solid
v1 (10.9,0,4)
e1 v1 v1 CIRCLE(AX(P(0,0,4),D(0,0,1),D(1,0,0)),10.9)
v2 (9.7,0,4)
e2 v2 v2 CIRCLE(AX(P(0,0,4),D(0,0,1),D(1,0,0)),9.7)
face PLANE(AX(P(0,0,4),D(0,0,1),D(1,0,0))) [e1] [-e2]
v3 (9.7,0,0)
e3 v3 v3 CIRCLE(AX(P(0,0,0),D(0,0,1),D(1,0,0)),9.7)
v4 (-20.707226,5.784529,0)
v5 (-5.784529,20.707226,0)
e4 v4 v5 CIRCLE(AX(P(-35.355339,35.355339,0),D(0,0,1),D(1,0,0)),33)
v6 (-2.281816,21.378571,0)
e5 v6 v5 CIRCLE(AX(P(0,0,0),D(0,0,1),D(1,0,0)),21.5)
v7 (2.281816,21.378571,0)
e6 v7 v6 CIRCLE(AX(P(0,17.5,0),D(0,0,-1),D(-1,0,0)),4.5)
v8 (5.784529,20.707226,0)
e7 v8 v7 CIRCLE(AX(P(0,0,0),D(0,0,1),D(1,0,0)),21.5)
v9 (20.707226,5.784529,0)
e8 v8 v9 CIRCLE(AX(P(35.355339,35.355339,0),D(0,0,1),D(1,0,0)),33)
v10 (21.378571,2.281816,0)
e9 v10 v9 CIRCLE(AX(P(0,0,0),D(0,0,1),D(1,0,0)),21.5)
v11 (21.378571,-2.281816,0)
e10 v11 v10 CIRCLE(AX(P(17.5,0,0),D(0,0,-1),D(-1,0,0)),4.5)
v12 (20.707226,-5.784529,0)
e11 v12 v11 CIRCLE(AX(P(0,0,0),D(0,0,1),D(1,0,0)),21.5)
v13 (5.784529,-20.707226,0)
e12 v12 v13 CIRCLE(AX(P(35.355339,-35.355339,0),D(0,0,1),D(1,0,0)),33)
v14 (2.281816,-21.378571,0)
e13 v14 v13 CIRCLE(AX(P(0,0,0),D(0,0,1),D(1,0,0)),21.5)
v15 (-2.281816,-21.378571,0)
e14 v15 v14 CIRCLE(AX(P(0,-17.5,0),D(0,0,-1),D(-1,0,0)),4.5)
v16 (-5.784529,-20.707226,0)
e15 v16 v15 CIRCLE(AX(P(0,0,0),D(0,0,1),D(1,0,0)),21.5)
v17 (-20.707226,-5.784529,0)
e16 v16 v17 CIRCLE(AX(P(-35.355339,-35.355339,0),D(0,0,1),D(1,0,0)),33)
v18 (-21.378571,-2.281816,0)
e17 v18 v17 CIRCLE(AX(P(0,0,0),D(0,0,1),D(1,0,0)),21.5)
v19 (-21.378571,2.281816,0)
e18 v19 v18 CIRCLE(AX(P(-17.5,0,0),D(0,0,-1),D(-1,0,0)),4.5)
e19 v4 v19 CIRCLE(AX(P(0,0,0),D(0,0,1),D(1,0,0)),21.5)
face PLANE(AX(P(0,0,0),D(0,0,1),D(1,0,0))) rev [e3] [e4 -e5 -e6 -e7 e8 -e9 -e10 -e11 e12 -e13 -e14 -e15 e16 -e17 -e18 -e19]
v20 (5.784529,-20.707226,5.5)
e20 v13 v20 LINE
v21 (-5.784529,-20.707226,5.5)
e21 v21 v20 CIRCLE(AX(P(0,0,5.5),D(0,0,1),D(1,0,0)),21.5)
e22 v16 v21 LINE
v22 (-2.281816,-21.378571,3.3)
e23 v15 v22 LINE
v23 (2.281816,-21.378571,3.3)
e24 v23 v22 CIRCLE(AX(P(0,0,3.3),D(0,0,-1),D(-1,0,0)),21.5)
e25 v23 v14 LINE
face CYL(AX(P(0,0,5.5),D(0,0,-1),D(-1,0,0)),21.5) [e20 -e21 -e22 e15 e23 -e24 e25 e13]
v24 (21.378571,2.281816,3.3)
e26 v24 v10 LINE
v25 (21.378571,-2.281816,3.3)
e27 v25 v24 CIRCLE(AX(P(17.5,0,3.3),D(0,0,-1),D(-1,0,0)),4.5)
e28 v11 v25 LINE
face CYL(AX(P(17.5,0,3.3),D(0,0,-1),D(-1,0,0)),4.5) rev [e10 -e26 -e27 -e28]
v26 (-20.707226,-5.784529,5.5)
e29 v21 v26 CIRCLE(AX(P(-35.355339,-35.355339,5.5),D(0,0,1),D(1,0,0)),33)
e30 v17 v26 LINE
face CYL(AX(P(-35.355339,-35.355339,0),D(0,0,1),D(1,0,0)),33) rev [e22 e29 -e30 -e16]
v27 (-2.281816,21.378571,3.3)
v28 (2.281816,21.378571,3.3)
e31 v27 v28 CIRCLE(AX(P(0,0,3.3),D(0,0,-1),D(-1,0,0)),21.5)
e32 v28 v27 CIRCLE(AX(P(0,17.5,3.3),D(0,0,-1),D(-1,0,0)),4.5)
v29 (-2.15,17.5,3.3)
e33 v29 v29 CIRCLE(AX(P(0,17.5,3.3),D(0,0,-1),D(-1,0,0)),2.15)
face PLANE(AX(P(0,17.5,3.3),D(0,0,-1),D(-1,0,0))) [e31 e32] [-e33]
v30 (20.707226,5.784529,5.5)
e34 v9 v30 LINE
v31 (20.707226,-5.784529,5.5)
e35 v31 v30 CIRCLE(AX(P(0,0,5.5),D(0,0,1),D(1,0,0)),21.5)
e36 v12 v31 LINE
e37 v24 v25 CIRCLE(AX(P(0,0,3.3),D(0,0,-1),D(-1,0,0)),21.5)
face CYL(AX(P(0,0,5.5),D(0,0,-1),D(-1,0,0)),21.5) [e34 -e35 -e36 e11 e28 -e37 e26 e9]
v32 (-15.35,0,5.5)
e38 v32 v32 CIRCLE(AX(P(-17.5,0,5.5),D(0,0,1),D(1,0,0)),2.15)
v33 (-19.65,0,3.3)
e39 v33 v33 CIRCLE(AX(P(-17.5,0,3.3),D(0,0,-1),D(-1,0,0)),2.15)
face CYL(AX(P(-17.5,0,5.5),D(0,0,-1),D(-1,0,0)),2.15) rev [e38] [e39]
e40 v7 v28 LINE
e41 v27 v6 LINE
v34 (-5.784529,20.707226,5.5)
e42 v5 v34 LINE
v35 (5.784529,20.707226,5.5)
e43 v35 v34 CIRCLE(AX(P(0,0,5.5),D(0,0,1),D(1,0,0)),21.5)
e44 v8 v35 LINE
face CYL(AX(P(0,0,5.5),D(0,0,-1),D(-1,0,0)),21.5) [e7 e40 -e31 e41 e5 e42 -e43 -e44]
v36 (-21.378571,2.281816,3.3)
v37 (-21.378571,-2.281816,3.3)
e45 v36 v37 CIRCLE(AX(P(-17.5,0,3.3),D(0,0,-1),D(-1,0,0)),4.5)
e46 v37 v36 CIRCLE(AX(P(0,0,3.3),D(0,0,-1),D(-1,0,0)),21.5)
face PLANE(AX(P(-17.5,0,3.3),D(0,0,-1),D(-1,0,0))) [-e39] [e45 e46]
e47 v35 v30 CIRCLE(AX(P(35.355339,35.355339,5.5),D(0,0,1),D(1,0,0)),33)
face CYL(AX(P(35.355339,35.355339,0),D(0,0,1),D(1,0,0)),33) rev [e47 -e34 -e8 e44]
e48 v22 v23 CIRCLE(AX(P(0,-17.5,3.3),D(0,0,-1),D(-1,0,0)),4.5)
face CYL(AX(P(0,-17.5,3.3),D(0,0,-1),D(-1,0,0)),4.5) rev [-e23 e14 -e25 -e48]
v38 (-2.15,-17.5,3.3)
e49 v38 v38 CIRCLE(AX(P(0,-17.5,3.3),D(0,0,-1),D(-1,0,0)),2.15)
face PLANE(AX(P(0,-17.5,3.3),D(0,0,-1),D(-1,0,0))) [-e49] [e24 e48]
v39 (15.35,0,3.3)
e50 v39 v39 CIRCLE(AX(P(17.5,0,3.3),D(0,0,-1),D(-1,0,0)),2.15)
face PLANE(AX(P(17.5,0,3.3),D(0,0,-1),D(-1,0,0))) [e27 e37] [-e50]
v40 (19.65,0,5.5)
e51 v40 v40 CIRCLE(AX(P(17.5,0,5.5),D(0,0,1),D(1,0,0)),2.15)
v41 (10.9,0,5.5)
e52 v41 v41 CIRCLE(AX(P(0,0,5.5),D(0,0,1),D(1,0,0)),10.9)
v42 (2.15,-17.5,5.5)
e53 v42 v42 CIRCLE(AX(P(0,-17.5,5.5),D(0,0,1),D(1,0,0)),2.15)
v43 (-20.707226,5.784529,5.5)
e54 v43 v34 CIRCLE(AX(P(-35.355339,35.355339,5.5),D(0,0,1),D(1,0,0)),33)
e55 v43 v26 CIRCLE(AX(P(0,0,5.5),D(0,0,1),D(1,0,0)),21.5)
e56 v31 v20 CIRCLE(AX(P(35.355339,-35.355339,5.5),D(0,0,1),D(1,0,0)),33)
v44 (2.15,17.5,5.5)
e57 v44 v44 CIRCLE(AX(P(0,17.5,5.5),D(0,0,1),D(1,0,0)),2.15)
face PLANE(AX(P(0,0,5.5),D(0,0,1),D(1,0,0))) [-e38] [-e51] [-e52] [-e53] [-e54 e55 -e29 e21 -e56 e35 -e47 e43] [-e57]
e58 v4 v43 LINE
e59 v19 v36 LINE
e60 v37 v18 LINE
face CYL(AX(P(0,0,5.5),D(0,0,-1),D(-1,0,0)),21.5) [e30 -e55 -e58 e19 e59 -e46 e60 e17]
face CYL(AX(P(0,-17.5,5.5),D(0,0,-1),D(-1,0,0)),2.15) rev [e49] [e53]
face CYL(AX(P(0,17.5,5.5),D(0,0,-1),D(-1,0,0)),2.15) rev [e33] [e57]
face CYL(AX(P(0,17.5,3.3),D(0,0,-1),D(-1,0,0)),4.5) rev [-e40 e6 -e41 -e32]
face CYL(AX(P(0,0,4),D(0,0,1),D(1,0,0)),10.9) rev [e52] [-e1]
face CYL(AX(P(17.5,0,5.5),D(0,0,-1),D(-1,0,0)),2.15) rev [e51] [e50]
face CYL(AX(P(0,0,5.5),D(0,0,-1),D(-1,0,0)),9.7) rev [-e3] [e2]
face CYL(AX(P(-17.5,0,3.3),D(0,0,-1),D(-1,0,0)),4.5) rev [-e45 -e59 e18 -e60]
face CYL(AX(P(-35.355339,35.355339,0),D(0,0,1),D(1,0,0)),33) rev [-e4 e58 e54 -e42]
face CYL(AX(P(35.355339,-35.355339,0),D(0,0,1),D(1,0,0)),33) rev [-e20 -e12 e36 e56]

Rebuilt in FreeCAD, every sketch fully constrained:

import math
import FreeCAD as App
import Part
import Sketcher

V = App.Vector

doc = App.newDocument("Part")
body = doc.addObject("PartDesign::Body", "Body")

# Sketch on XY plane
sketch1 = doc.addObject("Sketcher::SketchObject", "Sketch")
body.addObject(sketch1)
sketch1.AttachmentSupport = (doc.XY_Plane, [""])
sketch1.MapMode = "FlatFace"
sketch1.addGeometry([
    Part.Circle(V(0, 0, 0), V(0, 0, 1), 21.5),  # 0
    Part.Circle(V(0, -17.5, 0), V(0, 0, 1), 2.1),  # 1
    Part.Circle(V(-17.5, 0, 0), V(0, 0, 1), 2.1),  # 2
    Part.Circle(V(0, 0, 0), V(0, 0, 1), 9.7),  # 3
    Part.Circle(V(17.5, 0, 0), V(0, 0, 1), 2.1),  # 4
    Part.Circle(V(0, 17.5, 0), V(0, 0, 1), 2.1),  # 5
], False)
sketch1.addConstraint([
    Sketcher.Constraint("Coincident", 0, 3, -1, 1),
    Sketcher.Constraint("Coincident", 3, 3, -1, 1),
    Sketcher.Constraint("Equal", 1, 2),
    Sketcher.Constraint("Equal", 2, 4),
    Sketcher.Constraint("Equal", 4, 5),
    Sketcher.Constraint("Symmetric", 2, 3, 4, 3, -1, 1),
    Sketcher.Constraint("Symmetric", 1, 3, 5, 3, -1, 1),
    Sketcher.Constraint("PointOnObject", 1, 3, -2),
    Sketcher.Constraint("PointOnObject", 2, 3, -1),
    Sketcher.Constraint("Diameter", 0, 43.0),
    Sketcher.Constraint("Diameter", 1, 4.3),
    Sketcher.Constraint("Diameter", 3, 19.4),
    Sketcher.Constraint("DistanceX", 2, 3, 4, 3, 35.0),
    Sketcher.Constraint("DistanceY", 1, 3, 5, 3, 35.0),
])
pad1 = doc.addObject("PartDesign::Pad", "Pad")
body.addObject(pad1)
pad1.Profile = sketch1
pad1.Length = 5.5

# Sketch on XY plane
sketch2 = doc.addObject("Sketcher::SketchObject", "Sketch001")
body.addObject(sketch2)
sketch2.AttachmentSupport = (doc.XY_Plane, [""])
sketch2.MapMode = "FlatFace"
sketch2.AttachmentOffset = App.Placement(V(0, 0, 5.5), App.Rotation())
sketch2.addGeometry([
    Part.Circle(V(0, 0, 0), V(0, 0, 1), 11),
    Part.Circle(V(0, 0, 0), V(0, 0, 1), 10),
], False)
sketch2.addConstraint([
    Sketcher.Constraint("Coincident", 0, 3, -1, 1),
    Sketcher.Constraint("Coincident", 1, 3, -1, 1),
    Sketcher.Constraint("Diameter", 0, 21.8),
    Sketcher.Constraint("Diameter", 1, 19.1),
])
pocket1 = doc.addObject("PartDesign::Pocket", "Pocket")
body.addObject(pocket1)
pocket1.Profile = sketch2
pocket1.Length = 1.5

# Sketch on XY plane
sketch3 = doc.addObject("Sketcher::SketchObject", "Sketch002")
body.addObject(sketch3)
sketch3.AttachmentSupport = (doc.XY_Plane, [""])
sketch3.MapMode = "FlatFace"
sketch3.AttachmentOffset = App.Placement(V(0, 0, 5.5), App.Rotation())
sketch3.addGeometry([
    Part.ArcOfCircle(Part.Circle(V(35, 35, 0), V(0, 0, 1), 33), math.radians(-154), math.radians(-116)),  # 0
    Part.ArcOfCircle(Part.Circle(V(0, 0, 0), V(0, 0, 1), 21), math.radians(16), math.radians(74)),  # 1
    Part.ArcOfCircle(Part.Circle(V(-35, 35, 0), V(0, 0, 1), 33), math.radians(-64), math.radians(-26)),  # 2
    Part.ArcOfCircle(Part.Circle(V(0, 0, 0), V(0, 0, 1), 21), math.radians(106), math.radians(164)),  # 3
    Part.ArcOfCircle(Part.Circle(V(-35, -35, 0), V(0, 0, 1), 33), math.radians(26), math.radians(64)),  # 4
    Part.ArcOfCircle(Part.Circle(V(0, 0, 0), V(0, 0, 1), 21), math.radians(-164), math.radians(-106)),  # 5
    Part.ArcOfCircle(Part.Circle(V(35, -35, 0), V(0, 0, 1), 33), math.radians(116), math.radians(154)),  # 6
    Part.ArcOfCircle(Part.Circle(V(0, 0, 0), V(0, 0, 1), 21), math.radians(-74), math.radians(-16)),  # 7
], False)
sketch3.addConstraint([
    Sketcher.Constraint("Coincident", 0, 1, 1, 2),
    Sketcher.Constraint("Coincident", 1, 1, 0, 2),
    Sketcher.Constraint("Coincident", 2, 1, 3, 2),
    Sketcher.Constraint("Coincident", 3, 1, 2, 2),
    Sketcher.Constraint("Coincident", 4, 1, 5, 2),
    Sketcher.Constraint("Coincident", 5, 1, 4, 2),
    Sketcher.Constraint("Coincident", 6, 1, 7, 2),
    Sketcher.Constraint("Coincident", 7, 1, 6, 2),
    Sketcher.Constraint("Coincident", 1, 3, -1, 1),
    Sketcher.Constraint("Coincident", 3, 3, -1, 1),
    Sketcher.Constraint("Coincident", 5, 3, -1, 1),
    Sketcher.Constraint("Coincident", 7, 3, -1, 1),
    Sketcher.Constraint("Equal", 0, 2),
    Sketcher.Constraint("Equal", 1, 3),
    Sketcher.Constraint("Equal", 2, 4),
    Sketcher.Constraint("Equal", 3, 5),
    Sketcher.Constraint("Equal", 4, 6),
    Sketcher.Constraint("Equal", 5, 7),
    Sketcher.Constraint("Symmetric", 0, 3, 4, 3, -1, 1),
    Sketcher.Constraint("Symmetric", 2, 3, 6, 3, -1, 1),
    Sketcher.Constraint("Symmetric", 0, 3, 2, 3, -2),
    Sketcher.Constraint("Radius", 0, 33.0),
    Sketcher.Constraint("Radius", 1, 21.5),
    Sketcher.Constraint("DistanceX", -1, 1, 0, 3, 35.355339),
    Sketcher.Constraint("DistanceY", -1, 1, 0, 3, 35.355339),
])
pocket2 = doc.addObject("PartDesign::Pocket", "Pocket001")
body.addObject(pocket2)
pocket2.Profile = sketch3
pocket2.Type = "ThroughAll"

# Sketch on XY plane
sketch4 = doc.addObject("Sketcher::SketchObject", "Sketch003")
body.addObject(sketch4)
sketch4.AttachmentSupport = (doc.XY_Plane, [""])
sketch4.MapMode = "FlatFace"
sketch4.addGeometry([
    Part.Circle(V(0, 17.5, 0), V(0, 0, 1), 4.5),
    Part.Circle(V(-17.5, 0, 0), V(0, 0, 1), 4.5),
    Part.Circle(V(17.5, 0, 0), V(0, 0, 1), 4.5),
    Part.Circle(V(0, -17.5, 0), V(0, 0, 1), 4.5),
], False)
sketch4.addConstraint([
    Sketcher.Constraint("Equal", 0, 1),
    Sketcher.Constraint("Equal", 1, 2),
    Sketcher.Constraint("Equal", 2, 3),
    Sketcher.Constraint("Symmetric", 1, 3, 2, 3, -1, 1),
    Sketcher.Constraint("Symmetric", 0, 3, 3, 3, -1, 1),
    Sketcher.Constraint("PointOnObject", 0, 3, -2),
    Sketcher.Constraint("PointOnObject", 1, 3, -1),
    Sketcher.Constraint("Diameter", 0, 9.0),
    Sketcher.Constraint("DistanceX", 1, 3, 2, 3, 35.0),
    Sketcher.Constraint("DistanceY", 3, 3, 0, 3, 35.0),
])
pocket3 = doc.addObject("PartDesign::Pocket", "Pocket002")
body.addObject(pocket3)
pocket3.Profile = sketch4
pocket3.Length = 3.3
pocket3.Reversed = True

doc.recompute()
